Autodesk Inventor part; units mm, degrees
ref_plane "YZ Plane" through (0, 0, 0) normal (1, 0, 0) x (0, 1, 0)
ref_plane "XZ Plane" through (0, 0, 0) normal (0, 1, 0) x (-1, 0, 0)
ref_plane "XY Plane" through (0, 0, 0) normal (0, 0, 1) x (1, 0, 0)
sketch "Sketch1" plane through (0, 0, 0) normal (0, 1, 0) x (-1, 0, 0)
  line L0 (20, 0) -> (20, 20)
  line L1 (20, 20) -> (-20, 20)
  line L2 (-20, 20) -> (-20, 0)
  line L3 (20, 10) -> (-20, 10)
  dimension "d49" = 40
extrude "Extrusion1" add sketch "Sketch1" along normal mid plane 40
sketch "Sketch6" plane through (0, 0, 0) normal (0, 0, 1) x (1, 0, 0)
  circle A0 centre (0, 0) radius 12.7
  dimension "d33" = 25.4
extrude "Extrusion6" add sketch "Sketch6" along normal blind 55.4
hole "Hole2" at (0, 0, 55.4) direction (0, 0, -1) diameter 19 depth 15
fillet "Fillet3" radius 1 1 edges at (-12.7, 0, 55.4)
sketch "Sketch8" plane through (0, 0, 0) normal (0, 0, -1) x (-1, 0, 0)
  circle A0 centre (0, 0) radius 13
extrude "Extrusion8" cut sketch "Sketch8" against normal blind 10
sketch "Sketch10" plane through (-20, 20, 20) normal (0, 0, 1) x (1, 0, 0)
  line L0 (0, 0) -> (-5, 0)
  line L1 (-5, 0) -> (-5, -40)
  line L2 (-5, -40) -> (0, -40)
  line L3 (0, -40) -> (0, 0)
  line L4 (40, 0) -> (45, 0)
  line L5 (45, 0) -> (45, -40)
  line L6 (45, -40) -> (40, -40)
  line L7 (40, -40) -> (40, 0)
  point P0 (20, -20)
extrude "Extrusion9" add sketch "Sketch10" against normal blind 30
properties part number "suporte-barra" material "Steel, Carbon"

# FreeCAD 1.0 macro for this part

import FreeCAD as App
import Part
import Sketcher

V = App.Vector


def edges_at(feature, points):
    """Names of the edges that pass closest to the given points."""
    edges = feature.Shape.Edges
    near = lambda p: min(range(len(edges)), key=lambda i: edges[i].distToShape(Part.Vertex(*p))[0])
    return sorted({f"Edge{near(p) + 1}" for p in points})

doc = App.newDocument("Part")
body = doc.addObject("PartDesign::Body", "Body")

# Sketch on XZ plane
sketch1 = doc.addObject("Sketcher::SketchObject", "Sketch")
body.addObject(sketch1)
sketch1.AttachmentSupport = (doc.XZ_Plane, [""])
sketch1.MapMode = "FlatFace"
sketch1.addGeometry(Part.LineSegment(V(20, 10, 0), V(-20, 10, 0)), False)
sketch1.addGeometry(Part.LineSegment(V(-20, 10, 0), V(-20, 20, 0)), False)
sketch1.addGeometry(Part.LineSegment(V(-20, 20, 0), V(20, 20, 0)), False)
sketch1.addGeometry(Part.LineSegment(V(20, 20, 0), V(20, 10, 0)), False)
sketch1.addConstraint(Sketcher.Constraint("Coincident", 0, 2, 1, 1))
sketch1.addConstraint(Sketcher.Constraint("Coincident", 1, 2, 2, 1))
sketch1.addConstraint(Sketcher.Constraint("Coincident", 2, 2, 3, 1))
sketch1.addConstraint(Sketcher.Constraint("Coincident", 3, 2, 0, 1))
sketch1.addConstraint(Sketcher.Constraint("Horizontal", 0))
sketch1.addConstraint(Sketcher.Constraint("Vertical", 1))
sketch1.addConstraint(Sketcher.Constraint("Horizontal", 2))
sketch1.addConstraint(Sketcher.Constraint("Vertical", 3))
sketch1.addConstraint(Sketcher.Constraint("DistanceX", 0, 2, 0, 1, 40.0))
sketch1.addConstraint(Sketcher.Constraint("DistanceY", 1, 1, 1, 2, 10.0))
sketch1.addConstraint(Sketcher.Constraint("DistanceX", 0, 2, -1, 1, 20.0))
sketch1.addConstraint(Sketcher.Constraint("DistanceY", -1, 1, 0, 2, 10.0))
pad1 = doc.addObject("PartDesign::Pad", "Pad")
body.addObject(pad1)
pad1.Profile = sketch1
pad1.Length = 40
pad1.Midplane = True

# Sketch on XY plane
sketch2 = doc.addObject("Sketcher::SketchObject", "Sketch001")
body.addObject(sketch2)
sketch2.AttachmentSupport = (doc.XY_Plane, [""])
sketch2.MapMode = "FlatFace"
sketch2.addGeometry(Part.Circle(V(0, 0, 0), V(0, 0, 1), 13), False)
sketch2.addConstraint(Sketcher.Constraint("Coincident", 0, 3, -1, 1))
sketch2.addConstraint(Sketcher.Constraint("Diameter", 0, 25.4))
pad2 = doc.addObject("PartDesign::Pad", "Pad001")
body.addObject(pad2)
pad2.Profile = sketch2
pad2.Length = 55.4

# Sketch on XY plane
sketch3 = doc.addObject("Sketcher::SketchObject", "Sketch002")
body.addObject(sketch3)
sketch3.AttachmentSupport = (doc.XY_Plane, [""])
sketch3.MapMode = "FlatFace"
sketch3.AttachmentOffset = App.Placement(V(0, 0, 55.4), App.Rotation())
sketch3.addGeometry(Part.Circle(V(0, 0, 0), V(0, 0, 1), 10), False)
sketch3.addConstraint(Sketcher.Constraint("Coincident", 0, 3, -1, 1))
sketch3.addConstraint(Sketcher.Constraint("Diameter", 0, 19.0))
doc.recompute()
hole = doc.addObject("PartDesign::Hole", "Hole")
body.addObject(hole)
hole.Profile = sketch3
hole.ThreadType = "None"
hole.Diameter = 19
hole.DepthType = "Dimension"
hole.Depth = 15
hole.DrillPoint = "Flat"
doc.recompute()

fillet = doc.addObject("PartDesign::Fillet", "Fillet")
body.addObject(fillet)
fillet.Base = (hole, edges_at(hole, [(-12.7, 0, 55.4)]))
fillet.Radius = 1

# Sketch on XY plane
sketch4 = doc.addObject("Sketcher::SketchObject", "Sketch003")
body.addObject(sketch4)
sketch4.AttachmentSupport = (doc.XY_Plane, [""])
sketch4.MapMode = "FlatFace"
sketch4.addGeometry(Part.Circle(V(0, 0, 0), V(0, 0, 1), 13), False)
sketch4.addConstraint(Sketcher.Constraint("Coincident", 0, 3, -1, 1))
sketch4.addConstraint(Sketcher.Constraint("Diameter", 0, 26.0))
pocket1 = doc.addObject("PartDesign::Pocket", "Pocket")
body.addObject(pocket1)
pocket1.Profile = sketch4
pocket1.Length = 10
pocket1.Reversed = True

# Sketch on XY plane
sketch5 = doc.addObject("Sketcher::SketchObject", "Sketch004")
body.addObject(sketch5)
sketch5.AttachmentSupport = (doc.XY_Plane, [""])
sketch5.MapMode = "FlatFace"
sketch5.AttachmentOffset = App.Placement(V(0, 0, 20), App.Rotation())
sketch5.addGeometry(Part.LineSegment(V(-20, -20, 0), V(-20, 20, 0)), False)
sketch5.addGeometry(Part.LineSegment(V(-20, 20, 0), V(-25, 20, 0)), False)
sketch5.addGeometry(Part.LineSegment(V(-25, 20, 0), V(-25, -20, 0)), False)
sketch5.addGeometry(Part.LineSegment(V(-25, -20, 0), V(-20, -20, 0)), False)
sketch5.addGeometry(Part.LineSegment(V(25, 20, 0), V(20, 20, 0)), False)
sketch5.addGeometry(Part.LineSegment(V(20, 20, 0), V(20, -20, 0)), False)
sketch5.addGeometry(Part.LineSegment(V(20, -20, 0), V(25, -20, 0)), False)
sketch5.addGeometry(Part.LineSegment(V(25, -20, 0), V(25, 20, 0)), False)
sketch5.addConstraint(Sketcher.Constraint("Coincident", 0, 2, 1, 1))
sketch5.addConstraint(Sketcher.Constraint("Coincident", 1, 2, 2, 1))
sketch5.addConstraint(Sketcher.Constraint("Coincident", 2, 2, 3, 1))
sketch5.addConstraint(Sketcher.Constraint("Coincident", 3, 2, 0, 1))
sketch5.addConstraint(Sketcher.Constraint("Coincident", 4, 2, 5, 1))
sketch5.addConstraint(Sketcher.Constraint("Coincident", 5, 2, 6, 1))
sketch5.addConstraint(Sketcher.Constraint("Coincident", 6, 2, 7, 1))
sketch5.addConstraint(Sketcher.Constraint("Coincident", 7, 2, 4, 1))
sketch5.addConstraint(Sketcher.Constraint("Vertical", 0))
sketch5.addConstraint(Sketcher.Constraint("Horizontal", 1))
sketch5.addConstraint(Sketcher.Constraint("Vertical", 2))
sketch5.addConstraint(Sketcher.Constraint("Horizontal", 3))
sketch5.addConstraint(Sketcher.Constraint("Horizontal", 4))
sketch5.addConstraint(Sketcher.Constraint("Vertical", 5))
sketch5.addConstraint(Sketcher.Constraint("Horizontal", 6))
sketch5.addConstraint(Sketcher.Constraint("Vertical", 7))
sketch5.addConstraint(Sketcher.Constraint("Symmetric", 3, 2, 4, 2, -1, 1))
sketch5.addConstraint(Sketcher.Constraint("Symmetric", 1, 2, 6, 2, -1, 1))
sketch5.addConstraint(Sketcher.Constraint("Horizontal", 1, 2, 4, 2))
sketch5.addConstraint(Sketcher.Constraint("DistanceX", 1, 2, 1, 1, 5.0))
sketch5.addConstraint(Sketcher.Constraint("DistanceY", 0, 1, 0, 2, 40.0))
sketch5.addConstraint(Sketcher.Constraint("DistanceX", 0, 2, -1, 1, 20.0))
pad3 = doc.addObject("PartDesign::Pad", "Pad002")
body.addObject(pad3)
pad3.Profile = sketch5
pad3.Length = 30
pad3.Reversed = True

doc.recompute()
